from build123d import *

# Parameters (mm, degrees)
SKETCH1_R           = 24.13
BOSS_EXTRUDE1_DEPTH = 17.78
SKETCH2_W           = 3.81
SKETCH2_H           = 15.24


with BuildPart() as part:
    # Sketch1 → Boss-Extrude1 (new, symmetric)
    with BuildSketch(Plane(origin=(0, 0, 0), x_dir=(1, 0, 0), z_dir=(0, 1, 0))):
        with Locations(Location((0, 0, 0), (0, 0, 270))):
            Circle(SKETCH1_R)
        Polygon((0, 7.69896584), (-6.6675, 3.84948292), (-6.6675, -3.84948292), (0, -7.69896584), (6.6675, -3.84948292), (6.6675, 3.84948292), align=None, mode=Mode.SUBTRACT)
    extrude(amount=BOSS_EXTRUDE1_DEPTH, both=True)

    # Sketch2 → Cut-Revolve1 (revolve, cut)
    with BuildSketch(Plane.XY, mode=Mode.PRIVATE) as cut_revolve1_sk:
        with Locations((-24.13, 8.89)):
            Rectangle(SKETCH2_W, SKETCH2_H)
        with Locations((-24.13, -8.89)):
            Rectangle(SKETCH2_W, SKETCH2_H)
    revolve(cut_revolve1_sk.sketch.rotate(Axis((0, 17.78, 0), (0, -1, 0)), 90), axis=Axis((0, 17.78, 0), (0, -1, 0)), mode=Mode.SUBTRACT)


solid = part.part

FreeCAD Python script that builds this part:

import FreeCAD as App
import Part
import Sketcher

V = App.Vector
Q = App.Units.Quantity

doc = App.newDocument("Part")
params = doc.addObject("Spreadsheet::Sheet", "Params")
for row, (alias, value) in enumerate([
    ("sketch1_diameter", "1.9 in"),
    ("pad1_length", "1.4 in"),
    ("sketch2_height", "0.6 in"),
    ("sketch2_width", "0.15 in"),
    ("groove_angle", "360 deg"),
], start=1):
    params.set(f"A{row}", alias)
    params.set(f"B{row}", "=" + value)
    params.setAlias(f"B{row}", alias)

body = doc.addObject("PartDesign::Body", "Body")

sketch1 = body.newObject("Sketcher::SketchObject", "Sketch")
sketch1.AttachmentSupport = (doc.getObject("XZ_Plane"), [""])
sketch1.MapMode = "FlatFace"
sketch1.addGeometry(Part.Circle(V(0, 0, 0), V(0, 0, 1), 24), False)
sketch1.addGeometry(Part.LineSegment(V(-7, -4, 0), V(0, -8, 0)), False)
sketch1.addGeometry(Part.LineSegment(V(0, -8, 0), V(7, -4, 0)), False)
sketch1.addGeometry(Part.LineSegment(V(7, -4, 0), V(7, 4, 0)), False)
sketch1.addGeometry(Part.LineSegment(V(7, 4, 0), V(0, 8, 0)), False)
sketch1.addGeometry(Part.LineSegment(V(0, 8, 0), V(-7, 4, 0)), False)
sketch1.addGeometry(Part.LineSegment(V(-7, 4, 0), V(-7, -4, 0)), False)
sketch1.addConstraint(Sketcher.Constraint("Coincident", 1, 2, 2, 1))
sketch1.addConstraint(Sketcher.Constraint("Coincident", 2, 2, 3, 1))
sketch1.addConstraint(Sketcher.Constraint("Coincident", 3, 2, 4, 1))
sketch1.addConstraint(Sketcher.Constraint("Coincident", 4, 2, 5, 1))
sketch1.addConstraint(Sketcher.Constraint("Coincident", 5, 2, 6, 1))
sketch1.addConstraint(Sketcher.Constraint("Coincident", 6, 2, 1, 1))
sketch1.addConstraint(Sketcher.Constraint("Vertical", 3))
sketch1.addConstraint(Sketcher.Constraint("Vertical", 6))
sketch1.addConstraint(Sketcher.Constraint("Coincident", 0, 3, -1, 1))
sketch1.addConstraint(Sketcher.Constraint("Symmetric", 1, 2, 4, 2, -1, 1))
sketch1.addConstraint(Sketcher.Constraint("Symmetric", 2, 2, 5, 2, -1, 1))
sketch1.addConstraint(Sketcher.Constraint("PointOnObject", 1, 2, -2))
sketch1.addConstraint(Sketcher.Constraint("Parallel", 1, 4))
sketch1.addConstraint(Sketcher.Constraint("Horizontal", 3, 2, 5, 2))
sketch1.addConstraint(Sketcher.Constraint("Diameter", 0, Q("1.9 in")))
sketch1.addConstraint(Sketcher.Constraint("Angle", 1, Q("-30 deg")))
sketch1.addConstraint(Sketcher.Constraint("DistanceX", 5, 2, 3, 2, Q("0.525 in")))
sketch1.addConstraint(Sketcher.Constraint("DistanceY", 3, 1, 3, 2, 7.698966))
sketch1.setExpression("Constraints[14]", "Params.sketch1_diameter")
pad1 = body.newObject("PartDesign::Pad", "Pad")
pad1.Profile = sketch1
pad1.setExpression("Length", "Params.pad1_length")
pad1.Midplane = True

sketch2 = body.newObject("Sketcher::SketchObject", "Sketch001")
sketch2.AttachmentSupport = (doc.getObject("XY_Plane"), [""])
sketch2.MapMode = "FlatFace"
sketch2.addGeometry(Part.LineSegment(V(-26, 16.5, 0), V(-26, 1.3, 0)), False)
sketch2.addGeometry(Part.LineSegment(V(-26, 1.3, 0), V(-22.2, 1.3, 0)), False)
sketch2.addGeometry(Part.LineSegment(V(-22.2, 1.3, 0), V(-22.2, 16.5, 0)), False)
sketch2.addGeometry(Part.LineSegment(V(-22.2, 16.5, 0), V(-26, 16.5, 0)), False)
sketch2.addGeometry(Part.LineSegment(V(-26, -1.3, 0), V(-26, -16.5, 0)), False)
sketch2.addGeometry(Part.LineSegment(V(-26, -16.5, 0), V(-22.2, -16.5, 0)), False)
sketch2.addGeometry(Part.LineSegment(V(-22.2, -16.5, 0), V(-22.2, -1.3, 0)), False)
sketch2.addGeometry(Part.LineSegment(V(-22.2, -1.3, 0), V(-26, -1.3, 0)), False)
sketch2.addConstraint(Sketcher.Constraint("Coincident", 0, 2, 1, 1))
sketch2.addConstraint(Sketcher.Constraint("Coincident", 1, 2, 2, 1))
sketch2.addConstraint(Sketcher.Constraint("Coincident", 2, 2, 3, 1))
sketch2.addConstraint(Sketcher.Constraint("Coincident", 3, 2, 0, 1))
sketch2.addConstraint(Sketcher.Constraint("Coincident", 4, 2, 5, 1))
sketch2.addConstraint(Sketcher.Constraint("Coincident", 5, 2, 6, 1))
sketch2.addConstraint(Sketcher.Constraint("Coincident", 6, 2, 7, 1))
sketch2.addConstraint(Sketcher.Constraint("Coincident", 7, 2, 4, 1))
sketch2.addConstraint(Sketcher.Constraint("Vertical", 0))
sketch2.addConstraint(Sketcher.Constraint("Horizontal", 1))
sketch2.addConstraint(Sketcher.Constraint("Vertical", 2))
sketch2.addConstraint(Sketcher.Constraint("Horizontal", 3))
sketch2.addConstraint(Sketcher.Constraint("Vertical", 4))
sketch2.addConstraint(Sketcher.Constraint("Horizontal", 5))
sketch2.addConstraint(Sketcher.Constraint("Vertical", 6))
sketch2.addConstraint(Sketcher.Constraint("Horizontal", 7))
sketch2.addConstraint(Sketcher.Constraint("Symmetric", 3, 2, 4, 2, -1))
sketch2.addConstraint(Sketcher.Constraint("Symmetric", 1, 2, 6, 2, -1))
sketch2.addConstraint(Sketcher.Constraint("DistanceY", 0, 2, 0, 1, Q("0.6 in")))
sketch2.addConstraint(Sketcher.Constraint("DistanceX", 1, 1, 1, 2, Q("0.15 in")))
sketch2.addConstraint(Sketcher.Constraint("DistanceY", 4, 2, 0, 2, Q("0.7 in")))
sketch2.addConstraint(Sketcher.Constraint("DistanceX", 0, 2, -1, 1, Q("1.025 in")))
sketch2.setExpression("Constraints[18]", "Params.sketch2_height")
sketch2.setExpression("Constraints[19]", "Params.sketch2_width")
groove = body.newObject("PartDesign::Groove", "Groove")
groove.Profile = sketch2
groove.ReferenceAxis = (sketch2, ["V_Axis"])
groove.setExpression("Angle", "Params.groove_angle")

doc.recompute()
